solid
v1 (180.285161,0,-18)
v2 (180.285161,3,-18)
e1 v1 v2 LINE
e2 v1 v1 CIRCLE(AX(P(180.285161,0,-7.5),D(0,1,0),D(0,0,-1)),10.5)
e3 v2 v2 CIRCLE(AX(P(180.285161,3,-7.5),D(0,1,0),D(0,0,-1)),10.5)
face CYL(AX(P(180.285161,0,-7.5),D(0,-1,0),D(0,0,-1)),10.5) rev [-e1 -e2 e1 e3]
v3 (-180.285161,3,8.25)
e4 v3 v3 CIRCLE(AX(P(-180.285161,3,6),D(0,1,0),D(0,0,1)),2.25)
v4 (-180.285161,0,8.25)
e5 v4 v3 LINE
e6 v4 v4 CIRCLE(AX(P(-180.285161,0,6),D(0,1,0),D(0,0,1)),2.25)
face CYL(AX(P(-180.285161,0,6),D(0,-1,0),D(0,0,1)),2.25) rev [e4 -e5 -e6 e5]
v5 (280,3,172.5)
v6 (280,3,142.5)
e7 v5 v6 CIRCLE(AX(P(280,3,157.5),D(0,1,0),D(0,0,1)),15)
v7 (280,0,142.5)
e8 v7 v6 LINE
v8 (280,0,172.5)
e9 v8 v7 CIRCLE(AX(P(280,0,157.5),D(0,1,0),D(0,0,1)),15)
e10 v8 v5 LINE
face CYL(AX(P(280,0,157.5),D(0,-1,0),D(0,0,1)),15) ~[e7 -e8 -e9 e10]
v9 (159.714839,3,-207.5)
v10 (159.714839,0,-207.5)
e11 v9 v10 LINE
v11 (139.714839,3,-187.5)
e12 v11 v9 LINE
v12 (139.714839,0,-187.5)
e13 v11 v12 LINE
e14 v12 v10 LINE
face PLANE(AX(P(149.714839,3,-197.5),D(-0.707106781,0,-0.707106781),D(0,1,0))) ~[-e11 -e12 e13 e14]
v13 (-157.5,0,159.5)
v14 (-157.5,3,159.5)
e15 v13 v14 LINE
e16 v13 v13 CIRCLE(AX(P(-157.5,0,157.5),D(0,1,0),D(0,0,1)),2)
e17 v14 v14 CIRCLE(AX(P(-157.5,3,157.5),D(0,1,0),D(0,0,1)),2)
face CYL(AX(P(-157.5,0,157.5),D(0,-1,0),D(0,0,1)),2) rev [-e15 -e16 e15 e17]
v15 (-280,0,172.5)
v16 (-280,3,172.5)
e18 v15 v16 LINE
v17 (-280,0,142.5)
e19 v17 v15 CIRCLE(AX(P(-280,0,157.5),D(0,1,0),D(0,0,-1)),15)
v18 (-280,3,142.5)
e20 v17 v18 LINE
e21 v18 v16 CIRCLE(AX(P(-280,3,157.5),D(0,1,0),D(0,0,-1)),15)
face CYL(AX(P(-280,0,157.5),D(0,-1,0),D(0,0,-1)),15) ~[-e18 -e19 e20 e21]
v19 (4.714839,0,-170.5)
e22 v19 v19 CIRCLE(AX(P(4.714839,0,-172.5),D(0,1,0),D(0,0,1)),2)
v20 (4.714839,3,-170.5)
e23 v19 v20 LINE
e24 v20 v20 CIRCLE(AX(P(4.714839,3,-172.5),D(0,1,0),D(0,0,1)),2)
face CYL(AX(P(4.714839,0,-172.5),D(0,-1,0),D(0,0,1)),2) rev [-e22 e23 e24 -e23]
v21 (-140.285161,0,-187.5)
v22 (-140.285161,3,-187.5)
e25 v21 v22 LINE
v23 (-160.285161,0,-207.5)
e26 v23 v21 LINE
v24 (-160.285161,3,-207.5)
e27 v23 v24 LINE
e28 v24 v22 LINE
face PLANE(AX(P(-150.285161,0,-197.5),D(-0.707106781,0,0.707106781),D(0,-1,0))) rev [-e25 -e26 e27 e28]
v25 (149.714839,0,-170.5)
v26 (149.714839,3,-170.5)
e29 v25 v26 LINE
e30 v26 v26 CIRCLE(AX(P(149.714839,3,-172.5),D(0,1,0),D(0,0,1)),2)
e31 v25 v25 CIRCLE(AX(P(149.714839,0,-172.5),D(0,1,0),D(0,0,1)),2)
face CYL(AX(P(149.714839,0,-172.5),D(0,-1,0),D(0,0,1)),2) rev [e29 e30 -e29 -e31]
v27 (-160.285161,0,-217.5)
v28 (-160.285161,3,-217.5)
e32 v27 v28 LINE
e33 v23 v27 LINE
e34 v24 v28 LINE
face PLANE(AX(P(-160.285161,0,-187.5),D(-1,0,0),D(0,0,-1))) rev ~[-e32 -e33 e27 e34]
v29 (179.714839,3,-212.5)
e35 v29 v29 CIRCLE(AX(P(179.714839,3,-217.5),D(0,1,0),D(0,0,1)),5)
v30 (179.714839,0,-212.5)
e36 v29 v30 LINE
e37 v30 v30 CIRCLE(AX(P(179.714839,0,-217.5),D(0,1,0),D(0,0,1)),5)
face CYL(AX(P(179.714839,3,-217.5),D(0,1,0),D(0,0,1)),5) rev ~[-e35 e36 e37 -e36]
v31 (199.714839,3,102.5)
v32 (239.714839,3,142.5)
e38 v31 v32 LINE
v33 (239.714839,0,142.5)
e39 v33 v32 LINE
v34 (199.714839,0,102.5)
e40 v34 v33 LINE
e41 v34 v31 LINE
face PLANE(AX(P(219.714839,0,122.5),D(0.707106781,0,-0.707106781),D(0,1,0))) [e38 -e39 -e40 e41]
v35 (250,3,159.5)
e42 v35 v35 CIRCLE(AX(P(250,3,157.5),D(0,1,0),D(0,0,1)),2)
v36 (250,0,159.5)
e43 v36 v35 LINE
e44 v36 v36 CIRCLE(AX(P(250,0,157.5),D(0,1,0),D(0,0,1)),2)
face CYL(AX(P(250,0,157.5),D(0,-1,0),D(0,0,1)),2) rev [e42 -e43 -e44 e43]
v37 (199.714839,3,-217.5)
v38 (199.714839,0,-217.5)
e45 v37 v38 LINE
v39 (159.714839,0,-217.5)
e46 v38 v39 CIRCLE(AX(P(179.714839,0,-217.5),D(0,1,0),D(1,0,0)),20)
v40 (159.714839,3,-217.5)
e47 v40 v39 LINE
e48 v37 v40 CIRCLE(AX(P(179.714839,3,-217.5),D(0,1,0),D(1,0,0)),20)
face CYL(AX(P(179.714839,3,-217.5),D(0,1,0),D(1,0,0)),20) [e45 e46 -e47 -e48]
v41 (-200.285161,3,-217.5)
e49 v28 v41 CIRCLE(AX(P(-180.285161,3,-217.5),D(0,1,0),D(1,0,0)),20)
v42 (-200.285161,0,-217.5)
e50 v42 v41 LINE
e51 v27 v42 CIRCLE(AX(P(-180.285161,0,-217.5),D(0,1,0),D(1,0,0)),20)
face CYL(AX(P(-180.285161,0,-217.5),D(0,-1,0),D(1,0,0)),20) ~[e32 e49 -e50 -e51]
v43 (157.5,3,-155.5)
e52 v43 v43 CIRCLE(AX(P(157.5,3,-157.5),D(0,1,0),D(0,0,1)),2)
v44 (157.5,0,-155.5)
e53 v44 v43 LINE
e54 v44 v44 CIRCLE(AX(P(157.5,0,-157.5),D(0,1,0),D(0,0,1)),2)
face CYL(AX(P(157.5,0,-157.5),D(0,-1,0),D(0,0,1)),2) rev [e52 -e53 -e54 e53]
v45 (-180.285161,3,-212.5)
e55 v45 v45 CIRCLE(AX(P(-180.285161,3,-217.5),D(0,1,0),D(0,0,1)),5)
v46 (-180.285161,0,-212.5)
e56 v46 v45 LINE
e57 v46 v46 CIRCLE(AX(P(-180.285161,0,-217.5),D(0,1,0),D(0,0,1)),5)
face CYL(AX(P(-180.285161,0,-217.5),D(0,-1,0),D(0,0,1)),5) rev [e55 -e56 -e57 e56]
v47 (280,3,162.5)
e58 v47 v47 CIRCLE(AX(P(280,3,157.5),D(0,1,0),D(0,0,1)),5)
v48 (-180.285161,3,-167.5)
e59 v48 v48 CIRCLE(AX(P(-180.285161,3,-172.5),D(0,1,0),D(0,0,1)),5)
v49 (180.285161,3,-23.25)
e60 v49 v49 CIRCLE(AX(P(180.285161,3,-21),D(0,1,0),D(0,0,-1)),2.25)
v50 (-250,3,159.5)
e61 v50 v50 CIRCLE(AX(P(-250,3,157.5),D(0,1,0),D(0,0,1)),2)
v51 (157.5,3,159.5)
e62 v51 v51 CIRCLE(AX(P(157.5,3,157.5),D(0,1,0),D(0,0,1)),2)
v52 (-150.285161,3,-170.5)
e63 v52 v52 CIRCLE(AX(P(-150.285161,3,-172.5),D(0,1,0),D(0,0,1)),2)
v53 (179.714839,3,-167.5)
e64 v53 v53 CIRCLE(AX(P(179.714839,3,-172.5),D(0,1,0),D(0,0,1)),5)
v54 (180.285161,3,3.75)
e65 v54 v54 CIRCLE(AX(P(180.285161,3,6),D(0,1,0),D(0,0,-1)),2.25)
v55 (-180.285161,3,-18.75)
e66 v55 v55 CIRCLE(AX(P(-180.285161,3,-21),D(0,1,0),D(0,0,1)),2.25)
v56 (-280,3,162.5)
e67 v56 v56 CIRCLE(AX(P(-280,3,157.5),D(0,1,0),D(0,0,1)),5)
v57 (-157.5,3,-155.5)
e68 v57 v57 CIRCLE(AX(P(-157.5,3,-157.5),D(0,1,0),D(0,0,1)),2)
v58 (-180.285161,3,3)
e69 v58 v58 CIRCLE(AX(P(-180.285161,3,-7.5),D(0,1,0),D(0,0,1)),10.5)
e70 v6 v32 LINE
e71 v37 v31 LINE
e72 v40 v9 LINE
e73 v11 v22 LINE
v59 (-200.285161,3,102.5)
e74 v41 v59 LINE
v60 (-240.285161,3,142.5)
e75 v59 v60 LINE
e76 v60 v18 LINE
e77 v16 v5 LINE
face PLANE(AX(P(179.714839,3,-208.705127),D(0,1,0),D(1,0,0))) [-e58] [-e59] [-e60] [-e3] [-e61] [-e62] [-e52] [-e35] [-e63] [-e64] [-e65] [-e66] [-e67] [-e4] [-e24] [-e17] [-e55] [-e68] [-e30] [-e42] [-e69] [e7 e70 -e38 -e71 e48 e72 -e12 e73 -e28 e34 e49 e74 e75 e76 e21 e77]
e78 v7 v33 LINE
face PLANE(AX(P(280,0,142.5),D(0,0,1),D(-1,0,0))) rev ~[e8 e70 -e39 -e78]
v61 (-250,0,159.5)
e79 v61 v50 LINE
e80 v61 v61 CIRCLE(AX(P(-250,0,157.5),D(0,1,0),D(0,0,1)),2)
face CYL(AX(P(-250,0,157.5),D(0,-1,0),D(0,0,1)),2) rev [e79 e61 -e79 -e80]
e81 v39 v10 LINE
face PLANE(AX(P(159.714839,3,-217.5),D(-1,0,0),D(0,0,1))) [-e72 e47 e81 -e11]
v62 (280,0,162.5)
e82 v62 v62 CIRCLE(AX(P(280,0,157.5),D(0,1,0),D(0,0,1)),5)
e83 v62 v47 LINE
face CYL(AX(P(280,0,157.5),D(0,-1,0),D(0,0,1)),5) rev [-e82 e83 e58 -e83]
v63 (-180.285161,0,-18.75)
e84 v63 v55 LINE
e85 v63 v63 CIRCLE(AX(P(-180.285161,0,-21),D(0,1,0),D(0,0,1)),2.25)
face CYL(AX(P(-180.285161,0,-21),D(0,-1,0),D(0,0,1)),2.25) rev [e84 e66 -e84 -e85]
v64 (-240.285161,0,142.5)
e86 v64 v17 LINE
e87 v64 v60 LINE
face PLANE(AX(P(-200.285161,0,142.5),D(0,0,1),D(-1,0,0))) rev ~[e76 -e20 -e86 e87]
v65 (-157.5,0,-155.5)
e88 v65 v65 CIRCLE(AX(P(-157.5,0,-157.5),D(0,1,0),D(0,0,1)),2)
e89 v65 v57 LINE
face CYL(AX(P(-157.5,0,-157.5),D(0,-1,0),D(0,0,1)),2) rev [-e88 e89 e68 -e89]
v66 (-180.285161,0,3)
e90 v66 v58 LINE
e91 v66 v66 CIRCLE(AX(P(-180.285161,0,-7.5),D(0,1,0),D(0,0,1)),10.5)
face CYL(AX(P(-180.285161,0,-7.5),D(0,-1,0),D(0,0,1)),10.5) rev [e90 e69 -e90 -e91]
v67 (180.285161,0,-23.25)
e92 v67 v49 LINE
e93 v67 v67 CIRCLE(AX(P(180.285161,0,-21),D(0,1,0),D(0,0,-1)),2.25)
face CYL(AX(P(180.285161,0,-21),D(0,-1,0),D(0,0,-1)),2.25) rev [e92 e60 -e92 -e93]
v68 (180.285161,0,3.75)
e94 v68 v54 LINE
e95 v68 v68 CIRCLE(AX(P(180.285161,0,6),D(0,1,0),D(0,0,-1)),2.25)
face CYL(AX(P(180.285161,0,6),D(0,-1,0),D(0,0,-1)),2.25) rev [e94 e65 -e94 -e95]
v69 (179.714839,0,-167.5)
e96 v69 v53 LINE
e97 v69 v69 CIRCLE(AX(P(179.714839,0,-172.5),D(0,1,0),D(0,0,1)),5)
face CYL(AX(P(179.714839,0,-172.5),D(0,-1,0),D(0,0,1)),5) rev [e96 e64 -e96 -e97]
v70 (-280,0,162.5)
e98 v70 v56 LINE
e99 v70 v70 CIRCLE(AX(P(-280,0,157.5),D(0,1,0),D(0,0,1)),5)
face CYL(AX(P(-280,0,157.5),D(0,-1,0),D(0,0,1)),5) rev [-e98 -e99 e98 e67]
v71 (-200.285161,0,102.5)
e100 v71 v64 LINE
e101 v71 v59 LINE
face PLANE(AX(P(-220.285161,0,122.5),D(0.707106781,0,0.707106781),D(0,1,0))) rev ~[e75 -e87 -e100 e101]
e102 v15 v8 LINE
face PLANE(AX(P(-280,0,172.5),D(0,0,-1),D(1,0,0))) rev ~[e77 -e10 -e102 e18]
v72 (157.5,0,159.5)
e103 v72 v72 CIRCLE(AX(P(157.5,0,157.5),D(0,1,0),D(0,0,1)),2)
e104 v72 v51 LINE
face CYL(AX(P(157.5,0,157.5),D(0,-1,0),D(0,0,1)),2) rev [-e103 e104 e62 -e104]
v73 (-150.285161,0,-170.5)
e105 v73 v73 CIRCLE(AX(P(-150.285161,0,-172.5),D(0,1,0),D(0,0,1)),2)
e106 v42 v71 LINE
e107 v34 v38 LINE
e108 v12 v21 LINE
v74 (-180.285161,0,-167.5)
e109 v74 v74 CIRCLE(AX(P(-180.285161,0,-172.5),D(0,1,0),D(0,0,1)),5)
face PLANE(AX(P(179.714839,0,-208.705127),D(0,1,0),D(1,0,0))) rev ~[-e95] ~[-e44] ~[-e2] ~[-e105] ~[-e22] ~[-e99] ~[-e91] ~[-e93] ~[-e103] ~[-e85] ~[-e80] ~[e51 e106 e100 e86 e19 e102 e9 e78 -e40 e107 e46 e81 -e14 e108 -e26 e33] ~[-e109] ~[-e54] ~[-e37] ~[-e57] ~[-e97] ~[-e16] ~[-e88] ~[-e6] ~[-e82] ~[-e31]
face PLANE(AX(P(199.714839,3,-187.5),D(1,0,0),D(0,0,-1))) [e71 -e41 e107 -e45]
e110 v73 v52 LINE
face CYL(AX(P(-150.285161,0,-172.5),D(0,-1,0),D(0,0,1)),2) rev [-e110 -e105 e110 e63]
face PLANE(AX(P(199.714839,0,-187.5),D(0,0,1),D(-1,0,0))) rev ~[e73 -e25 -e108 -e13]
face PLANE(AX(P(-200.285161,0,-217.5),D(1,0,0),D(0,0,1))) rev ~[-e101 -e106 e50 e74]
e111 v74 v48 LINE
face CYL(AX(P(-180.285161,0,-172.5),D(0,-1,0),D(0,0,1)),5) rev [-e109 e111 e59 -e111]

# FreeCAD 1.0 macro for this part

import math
import FreeCAD as App
import Part
import Sketcher

V = App.Vector
Q = App.Units.Quantity


def edges_at(feature, points):
    """Names of the edges that pass closest to the given points."""
    edges = feature.Shape.Edges
    near = lambda p: min(range(len(edges)), key=lambda i: edges[i].distToShape(Part.Vertex(*p))[0])
    return sorted({f"Edge{near(p) + 1}" for p in points})

doc = App.newDocument("Part")
params = doc.addObject("Spreadsheet::Sheet", "Params")
for row, (alias, value) in enumerate([
    ("sketch1_diameter", "10 mm"),
    ("sketch1_diameter2", "4 mm"),
    ("sketch1_diameter3", "21 mm"),
    ("sketch1_radius", "15 mm"),
    ("sketch1_radius2", "20 mm"),
    ("pad1_length", "3 mm"),
    ("sketch2_diameter", "10 mm"),
    ("sketch2_radius", "20 mm"),
    ("sketch2_height", "30 mm"),
    ("pad2_length", "3 mm"),
    ("chamfer_size", "20 mm"),
    ("chamfer2_size", "40 mm"),
], start=1):
    params.set(f"A{row}", alias)
    params.set(f"B{row}", "=" + value)
    params.setAlias(f"B{row}", alias)

body = doc.addObject("PartDesign::Body", "Body")

# Sketch on XZ plane
sketch1 = doc.addObject("Sketcher::SketchObject", "Sketch")
body.addObject(sketch1)
sketch1.AttachmentSupport = (doc.XZ_Plane, [""])
sketch1.MapMode = "FlatFace"
sketch1.addGeometry([
    Part.LineSegment(V(-200.285161, 142.5, 0), V(-280, 142.5, 0)),  # 0
    Part.ArcOfCircle(Part.Circle(V(-280, 157.5, 0), V(0, 0, 1), 15), math.radians(90), math.radians(270)),  # 1
    Part.LineSegment(V(-280, 172.5, 0), V(280, 172.5, 0)),  # 2
    Part.ArcOfCircle(Part.Circle(V(280, 157.5, 0), V(0, 0, 1), 15), math.radians(-90), math.radians(90)),  # 3
    Part.LineSegment(V(280, 142.5, 0), V(199.714839, 142.5, 0)),  # 4
    Part.LineSegment(V(199.714839, 142.5, 0), V(199.714839, -187.5, 0)),  # 5
    Part.LineSegment(V(199.714839, -187.5, 0), V(-160.285161, -187.5, 0)),  # 6
    Part.LineSegment(V(-160.285161, -187.5, 0), V(-160.285161, -217.5, 0)),  # 7
    Part.ArcOfCircle(Part.Circle(V(-180.285161, -217.5, 0), V(0, 0, 1), 20), math.radians(180), math.radians(360)),  # 8
    Part.LineSegment(V(-200.285161, -217.5, 0), V(-200.285161, 142.5, 0)),  # 9
    Part.Circle(V(-280, 157.5, 0), V(0, 0, 1), 5),  # 10
    Part.Circle(V(-250, 157.5, 0), V(0, 0, 1), 2),  # 11
    Part.Circle(V(-157.5, 157.5, 0), V(0, 0, 1), 2),  # 12
    Part.Circle(V(-180.285161, 6, 0), V(0, 0, 1), 2.25),  # 13
    Part.Circle(V(-180.285161, -7.5, 0), V(0, 0, 1), 10.5),  # 14
    Part.Circle(V(-180.285161, -21, 0), V(0, 0, 1), 2.25),  # 15
    Part.Circle(V(157.5, 157.5, 0), V(0, 0, 1), 2),  # 16
    Part.Circle(V(250, 157.5, 0), V(0, 0, 1), 2),  # 17
    Part.Circle(V(280, 157.5, 0), V(0, 0, 1), 5),  # 18
    Part.Circle(V(180.285161, 6, 0), V(0, 0, 1), 2.25),  # 19
    Part.Circle(V(180.285161, -7.5, 0), V(0, 0, 1), 10.5),  # 20
    Part.Circle(V(180.285161, -21, 0), V(0, 0, 1), 2.25),  # 21
    Part.Circle(V(-180.285161, -172.5, 0), V(0, 0, 1), 5),  # 22
    Part.Circle(V(-157.5, -157.5, 0), V(0, 0, 1), 2),  # 23
    Part.Circle(V(-150.285161, -172.5, 0), V(0, 0, 1), 2),  # 24
    Part.Circle(V(-180.285161, -217.5, 0), V(0, 0, 1), 5),  # 25
    Part.Circle(V(4.714839, -172.5, 0), V(0, 0, 1), 2),  # 26
    Part.Circle(V(157.5, -157.5, 0), V(0, 0, 1), 2),  # 27
    Part.Circle(V(149.714839, -172.5, 0), V(0, 0, 1), 2),  # 28
    Part.Circle(V(179.714839, -172.5, 0), V(0, 0, 1), 5),  # 29
], False)
sketch1.addConstraint([
    Sketcher.Constraint("Tangent", 0, 2, 1, 2),
    Sketcher.Constraint("Tangent", 1, 1, 2, 1),
    Sketcher.Constraint("Tangent", 2, 2, 3, 2),
    Sketcher.Constraint("Tangent", 3, 1, 4, 1),
    Sketcher.Constraint("Coincident", 4, 2, 5, 1),
    Sketcher.Constraint("Coincident", 5, 2, 6, 1),
    Sketcher.Constraint("Coincident", 6, 2, 7, 1),
    Sketcher.Constraint("Tangent", 7, 2, 8, 2),
    Sketcher.Constraint("Tangent", 8, 1, 9, 1),
    Sketcher.Constraint("Coincident", 9, 2, 0, 1),
    Sketcher.Constraint("Horizontal", 0),
    Sketcher.Constraint("Horizontal", 2),
    Sketcher.Constraint("Horizontal", 4),
    Sketcher.Constraint("Vertical", 5),
    Sketcher.Constraint("Horizontal", 6),
    Sketcher.Constraint("Vertical", 7),
    Sketcher.Constraint("Vertical", 9),
    Sketcher.Constraint("Coincident", 10, 3, 1, 3),
    Sketcher.Constraint("Coincident", 18, 3, 3, 3),
    Sketcher.Constraint("Coincident", 25, 3, 8, 3),
    Sketcher.Constraint("Equal", 1, 3),
    Sketcher.Constraint("Equal", 11, 12),
    Sketcher.Constraint("Equal", 13, 15),
    Sketcher.Constraint("Equal", 12, 16),
    Sketcher.Constraint("Equal", 16, 17),
    Sketcher.Constraint("Equal", 10, 18),
    Sketcher.Constraint("Equal", 15, 19),
    Sketcher.Constraint("Equal", 14, 20),
    Sketcher.Constraint("Equal", 19, 21),
    Sketcher.Constraint("Equal", 18, 22),
    Sketcher.Constraint("Equal", 17, 23),
    Sketcher.Constraint("Equal", 23, 24),
    Sketcher.Constraint("Equal", 22, 25),
    Sketcher.Constraint("Equal", 24, 26),
    Sketcher.Constraint("Equal", 26, 27),
    Sketcher.Constraint("Equal", 27, 28),
    Sketcher.Constraint("Equal", 25, 29),
    Sketcher.Constraint("Symmetric", 16, 3, 23, 3, -1, 1),
    Sketcher.Constraint("Symmetric", 12, 3, 27, 3, -1, 1),
    Sketcher.Constraint("Symmetric", 12, 3, 16, 3, -2),
    Sketcher.Constraint("Symmetric", 11, 3, 17, 3, -2),
    Sketcher.Constraint("Symmetric", 13, 3, 19, 3, -2),
    Sketcher.Constraint("Symmetric", 14, 3, 20, 3, -2),
    Sketcher.Constraint("Symmetric", 15, 3, 21, 3, -2),
    Sketcher.Constraint("Horizontal", 10, 3, 11, 3),
    Sketcher.Constraint("Horizontal", 11, 3, 12, 3),
    Sketcher.Constraint("Horizontal", 22, 3, 24, 3),
    Sketcher.Constraint("Horizontal", 24, 3, 26, 3),
    Sketcher.Constraint("Horizontal", 26, 3, 28, 3),
    Sketcher.Constraint("Horizontal", 28, 3, 29, 3),
    Sketcher.Constraint("Vertical", 8, 3, 13, 3),
    Sketcher.Constraint("Vertical", 13, 3, 14, 3),
    Sketcher.Constraint("Vertical", 14, 3, 15, 3),
    Sketcher.Constraint("Vertical", 15, 3, 22, 3),
    Sketcher.Constraint("Equal", 6, 9),
    Sketcher.Constraint("Diameter", 10, Q("10 mm")),
    Sketcher.Constraint("Diameter", 11, Q("4 mm")),
    Sketcher.Constraint("Diameter", 14, Q("21 mm")),
    Sketcher.Constraint("Radius", 1, Q("15 mm")),
    Sketcher.Constraint("Radius", 8, Q("20 mm")),
    Sketcher.Constraint("Diameter", 13, Q("4.5 mm")),
    Sketcher.Constraint("DistanceX", 2, 1, 2, 2, Q("560 mm")),
    Sketcher.Constraint("DistanceX", 6, 2, 6, 1, Q("360 mm")),
    Sketcher.Constraint("DistanceY", 5, 2, 5, 1, Q("330 mm")),
    Sketcher.Constraint("DistanceX", 1, 3, -1, 1, Q("280 mm")),
    Sketcher.Constraint("DistanceX", 11, 3, -1, 1, Q("250 mm")),
    Sketcher.Constraint("DistanceY", -1, 1, 13, 3, Q("6 mm")),
    Sketcher.Constraint("DistanceY", 15, 3, -1, 1, Q("21 mm")),
    Sketcher.Constraint("DistanceY", 14, 3, 12, 3, Q("165 mm")),
    Sketcher.Constraint("DistanceX", 12, 3, 16, 3, Q("315 mm")),
    Sketcher.Constraint("DistanceY", 8, 3, 22, 3, Q("45 mm")),
    Sketcher.Constraint("DistanceY", 22, 3, 23, 3, Q("15 mm")),
    Sketcher.Constraint("DistanceX", 22, 3, 24, 3, Q("30 mm")),
    Sketcher.Constraint("DistanceX", 24, 3, 26, 3, Q("155 mm")),
    Sketcher.Constraint("DistanceX", 26, 3, 28, 3, Q("145 mm")),
    Sketcher.Constraint("DistanceX", 28, 3, 29, 3, Q("30 mm")),
    Sketcher.Constraint("DistanceX", 0, 2, 0, 1, Q("79.714839 mm")),
])
sketch1.setExpression("Constraints[55]", "Params.sketch1_diameter")
sketch1.setExpression("Constraints[56]", "Params.sketch1_diameter2")
sketch1.setExpression("Constraints[57]", "Params.sketch1_diameter3")
sketch1.setExpression("Constraints[58]", "Params.sketch1_radius")
sketch1.setExpression("Constraints[59]", "Params.sketch1_radius2")
pad1 = doc.addObject("PartDesign::Pad", "Pad")
body.addObject(pad1)
pad1.Profile = sketch1
pad1.setExpression("Length", "Params.pad1_length")
pad1.Reversed = True

# Sketch on XZ plane
sketch2 = doc.addObject("Sketcher::SketchObject", "Sketch001")
body.addObject(sketch2)
sketch2.AttachmentSupport = (doc.XZ_Plane, [""])
sketch2.MapMode = "FlatFace"
sketch2.AttachmentOffset = App.Placement(V(0, 0, -3), App.Rotation())
sketch2.addGeometry([
    Part.LineSegment(V(199.714839, -187.5, 0), V(199.714839, -217.5, 0)),  # 0
    Part.ArcOfCircle(Part.Circle(V(179.714839, -217.5, 0), V(0, 0, 1), 20), math.radians(180), math.radians(360)),  # 1
    Part.LineSegment(V(159.714839, -217.5, 0), V(159.714839, -187.5, 0)),  # 2
    Part.LineSegment(V(159.714839, -187.5, 0), V(199.714839, -187.5, 0)),  # 3
    Part.Circle(V(179.714839, -217.5, 0), V(0, 0, 1), 5),  # 4
], False)
sketch2.addConstraint([
    Sketcher.Constraint("Tangent", 0, 2, 1, 2),
    Sketcher.Constraint("Tangent", 1, 1, 2, 1),
    Sketcher.Constraint("Coincident", 2, 2, 3, 1),
    Sketcher.Constraint("Coincident", 3, 2, 0, 1),
    Sketcher.Constraint("Vertical", 0),
    Sketcher.Constraint("Vertical", 2),
    Sketcher.Constraint("Horizontal", 3),
    Sketcher.Constraint("Coincident", 4, 3, 1, 3),
    Sketcher.Constraint("Diameter", 4, Q("10 mm")),
    Sketcher.Constraint("Radius", 1, Q("20 mm")),
    Sketcher.Constraint("DistanceY", 0, 2, 0, 1, Q("30 mm")),
    Sketcher.Constraint("DistanceY", 1, 3, -1, 1, Q("217.5 mm")),
    Sketcher.Constraint("DistanceX", -1, 1, 1, 3, Q("179.714839 mm")),
])
sketch2.setExpression("Constraints[8]", "Params.sketch2_diameter")
sketch2.setExpression("Constraints[9]", "Params.sketch2_radius")
sketch2.setExpression("Constraints[10]", "Params.sketch2_height")
pad2 = doc.addObject("PartDesign::Pad", "Pad001")
body.addObject(pad2)
pad2.Profile = sketch2
pad2.setExpression("Length", "Params.pad2_length")
doc.recompute()

chamfer = doc.addObject("PartDesign::Chamfer", "Chamfer")
body.addObject(chamfer)
chamfer.Base = (pad2, edges_at(pad2, [(159.715, 1.5, -187.5), (-160.285, 1.5, -187.5)]))
chamfer.setExpression("Size", "Params.chamfer_size")
doc.recompute()

chamfer2 = doc.addObject("PartDesign::Chamfer", "Chamfer001")
body.addObject(chamfer2)
chamfer2.Base = (chamfer, edges_at(chamfer, [(-200.285, 1.5, 142.5), (199.715, 1.5, 142.5)]))
chamfer2.setExpression("Size", "Params.chamfer2_size")

doc.recompute()
